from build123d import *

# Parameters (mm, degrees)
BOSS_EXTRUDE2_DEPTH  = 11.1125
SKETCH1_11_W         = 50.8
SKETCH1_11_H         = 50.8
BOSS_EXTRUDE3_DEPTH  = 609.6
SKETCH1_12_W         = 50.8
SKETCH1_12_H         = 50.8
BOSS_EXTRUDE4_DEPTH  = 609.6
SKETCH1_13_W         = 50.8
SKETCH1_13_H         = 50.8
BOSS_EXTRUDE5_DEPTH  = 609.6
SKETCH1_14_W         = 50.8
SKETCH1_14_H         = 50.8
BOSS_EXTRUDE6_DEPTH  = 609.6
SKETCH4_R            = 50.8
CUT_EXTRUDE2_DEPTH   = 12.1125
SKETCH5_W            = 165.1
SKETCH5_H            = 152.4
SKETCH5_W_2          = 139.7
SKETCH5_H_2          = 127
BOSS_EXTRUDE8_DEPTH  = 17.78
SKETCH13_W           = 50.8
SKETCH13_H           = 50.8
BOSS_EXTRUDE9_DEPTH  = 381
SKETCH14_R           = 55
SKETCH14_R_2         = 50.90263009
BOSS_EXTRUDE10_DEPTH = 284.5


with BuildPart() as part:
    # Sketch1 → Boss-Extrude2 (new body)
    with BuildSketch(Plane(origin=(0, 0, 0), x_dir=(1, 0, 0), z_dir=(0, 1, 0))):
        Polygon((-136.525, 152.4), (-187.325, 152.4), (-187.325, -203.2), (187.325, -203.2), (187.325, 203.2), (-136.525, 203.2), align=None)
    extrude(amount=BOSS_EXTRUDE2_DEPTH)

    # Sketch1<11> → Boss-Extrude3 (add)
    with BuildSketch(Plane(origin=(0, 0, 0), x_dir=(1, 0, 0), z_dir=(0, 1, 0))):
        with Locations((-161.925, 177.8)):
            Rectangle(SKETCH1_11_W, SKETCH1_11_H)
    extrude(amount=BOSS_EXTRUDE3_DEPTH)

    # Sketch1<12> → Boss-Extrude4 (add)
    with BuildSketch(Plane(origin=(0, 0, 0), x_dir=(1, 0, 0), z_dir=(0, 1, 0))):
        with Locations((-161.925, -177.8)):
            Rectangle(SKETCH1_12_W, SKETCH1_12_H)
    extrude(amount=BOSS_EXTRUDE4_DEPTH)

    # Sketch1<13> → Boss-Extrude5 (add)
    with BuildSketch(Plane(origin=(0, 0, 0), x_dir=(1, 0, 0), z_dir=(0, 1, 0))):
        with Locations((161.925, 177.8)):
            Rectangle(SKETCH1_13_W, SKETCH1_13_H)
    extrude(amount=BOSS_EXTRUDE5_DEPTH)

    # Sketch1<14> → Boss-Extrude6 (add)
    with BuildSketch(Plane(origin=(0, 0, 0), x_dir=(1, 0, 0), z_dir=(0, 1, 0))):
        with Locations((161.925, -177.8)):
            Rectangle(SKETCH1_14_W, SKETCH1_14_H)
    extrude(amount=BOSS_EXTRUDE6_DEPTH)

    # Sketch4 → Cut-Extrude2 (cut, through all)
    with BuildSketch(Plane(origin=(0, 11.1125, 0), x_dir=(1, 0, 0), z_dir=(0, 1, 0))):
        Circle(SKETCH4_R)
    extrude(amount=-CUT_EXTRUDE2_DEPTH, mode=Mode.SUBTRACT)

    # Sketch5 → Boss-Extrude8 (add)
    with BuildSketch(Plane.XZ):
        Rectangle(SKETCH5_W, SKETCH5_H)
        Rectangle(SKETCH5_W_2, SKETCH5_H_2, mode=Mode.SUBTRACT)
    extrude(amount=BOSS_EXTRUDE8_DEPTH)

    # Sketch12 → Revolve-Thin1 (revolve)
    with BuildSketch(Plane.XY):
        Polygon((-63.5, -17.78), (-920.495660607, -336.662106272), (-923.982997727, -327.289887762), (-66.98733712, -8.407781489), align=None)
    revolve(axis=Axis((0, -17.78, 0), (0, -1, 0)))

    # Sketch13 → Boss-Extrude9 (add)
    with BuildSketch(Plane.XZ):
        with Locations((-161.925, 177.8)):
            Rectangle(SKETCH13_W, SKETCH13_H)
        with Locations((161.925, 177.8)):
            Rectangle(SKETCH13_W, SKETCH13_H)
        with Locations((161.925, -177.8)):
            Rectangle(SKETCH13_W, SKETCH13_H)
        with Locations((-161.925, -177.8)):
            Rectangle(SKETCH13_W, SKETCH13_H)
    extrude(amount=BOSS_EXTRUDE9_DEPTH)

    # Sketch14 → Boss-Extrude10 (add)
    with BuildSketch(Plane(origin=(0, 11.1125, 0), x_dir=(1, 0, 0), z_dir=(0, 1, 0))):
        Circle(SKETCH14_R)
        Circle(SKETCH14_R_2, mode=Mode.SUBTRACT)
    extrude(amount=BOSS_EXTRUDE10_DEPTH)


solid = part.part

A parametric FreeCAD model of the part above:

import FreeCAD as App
import Part
import Sketcher
from FreeCAD import Vector
Q = App.Units.Quantity

doc = App.newDocument("Part")
body = doc.addObject("PartDesign::Body", "Body")

sketch1 = body.newObject("Sketcher::SketchObject", "Sketch")
sketch1.AttachmentSupport = (doc.getObject("XZ_Plane"), [""])
sketch1.MapMode = "FlatFace"
sketch1.addGeometry(Part.LineSegment(Vector(-137, -152, 0), Vector(-187, -152, 0)), False)
sketch1.addGeometry(Part.LineSegment(Vector(-187, -152, 0), Vector(-187, 203, 0)), False)
sketch1.addGeometry(Part.LineSegment(Vector(-187, 203, 0), Vector(187, 203, 0)), False)
sketch1.addGeometry(Part.LineSegment(Vector(187, 203, 0), Vector(187, -203, 0)), False)
sketch1.addGeometry(Part.LineSegment(Vector(187, -203, 0), Vector(-137, -203, 0)), False)
sketch1.addGeometry(Part.LineSegment(Vector(-137, -203, 0), Vector(-137, -152, 0)), False)
sketch1.addConstraint(Sketcher.Constraint("Coincident", 0, 2, 1, 1))
sketch1.addConstraint(Sketcher.Constraint("Coincident", 1, 2, 2, 1))
sketch1.addConstraint(Sketcher.Constraint("Coincident", 2, 2, 3, 1))
sketch1.addConstraint(Sketcher.Constraint("Coincident", 3, 2, 4, 1))
sketch1.addConstraint(Sketcher.Constraint("Coincident", 4, 2, 5, 1))
sketch1.addConstraint(Sketcher.Constraint("Coincident", 5, 2, 0, 1))
sketch1.addConstraint(Sketcher.Constraint("Horizontal", 0))
sketch1.addConstraint(Sketcher.Constraint("Vertical", 1))
sketch1.addConstraint(Sketcher.Constraint("Horizontal", 2))
sketch1.addConstraint(Sketcher.Constraint("Vertical", 3))
sketch1.addConstraint(Sketcher.Constraint("Horizontal", 4))
sketch1.addConstraint(Sketcher.Constraint("Vertical", 5))
sketch1.addConstraint(Sketcher.Constraint("Symmetric", 1, 2, 3, 2, -1, 1))
sketch1.addConstraint(Sketcher.Constraint("Equal", 0, 5))
sketch1.addConstraint(Sketcher.Constraint("DistanceX", 0, 2, 0, 1, Q("2 in")))
sketch1.addConstraint(Sketcher.Constraint("DistanceY", 1, 1, 1, 2, Q("14 in")))
sketch1.addConstraint(Sketcher.Constraint("DistanceX", 2, 1, 2, 2, Q("14.75 in")))
pad1 = body.newObject("PartDesign::Pad", "Pad")
pad1.Profile = sketch1
pad1.Length = Q("0.4375 in")
pad1.Reversed = True

sketch2 = body.newObject("Sketcher::SketchObject", "Sketch001")
sketch2.AttachmentSupport = (doc.getObject("XZ_Plane"), [""])
sketch2.MapMode = "FlatFace"
sketch2.addGeometry(Part.LineSegment(Vector(-187, -203, 0), Vector(-187, -152, 0)), False)
sketch2.addGeometry(Part.LineSegment(Vector(-187, -152, 0), Vector(-137, -152, 0)), False)
sketch2.addGeometry(Part.LineSegment(Vector(-137, -152, 0), Vector(-137, -203, 0)), False)
sketch2.addGeometry(Part.LineSegment(Vector(-137, -203, 0), Vector(-187, -203, 0)), False)
sketch2.addConstraint(Sketcher.Constraint("Coincident", 0, 2, 1, 1))
sketch2.addConstraint(Sketcher.Constraint("Coincident", 1, 2, 2, 1))
sketch2.addConstraint(Sketcher.Constraint("Coincident", 2, 2, 3, 1))
sketch2.addConstraint(Sketcher.Constraint("Coincident", 3, 2, 0, 1))
sketch2.addConstraint(Sketcher.Constraint("Vertical", 0))
sketch2.addConstraint(Sketcher.Constraint("Horizontal", 1))
sketch2.addConstraint(Sketcher.Constraint("Vertical", 2))
sketch2.addConstraint(Sketcher.Constraint("Horizontal", 3))
sketch2.addConstraint(Sketcher.Constraint("Equal", 3, 0))
sketch2.addConstraint(Sketcher.Constraint("DistanceX", 1, 1, 1, 2, Q("2 in")))
sketch2.addConstraint(Sketcher.Constraint("DistanceY", 0, 2, -1, 1, Q("6 in")))
sketch2.addConstraint(Sketcher.Constraint("DistanceX", 0, 2, -1, 1, Q("7.375 in")))
pad2 = body.newObject("PartDesign::Pad", "Pad001")
pad2.Profile = sketch2
pad2.Length = Q("24 in")
pad2.Reversed = True

sketch3 = body.newObject("Sketcher::SketchObject", "Sketch002")
sketch3.AttachmentSupport = (doc.getObject("XZ_Plane"), [""])
sketch3.MapMode = "FlatFace"
sketch3.addGeometry(Part.LineSegment(Vector(-187, 152, 0), Vector(-187, 203, 0)), False)
sketch3.addGeometry(Part.LineSegment(Vector(-187, 203, 0), Vector(-137, 203, 0)), False)
sketch3.addGeometry(Part.LineSegment(Vector(-137, 203, 0), Vector(-137, 152, 0)), False)
sketch3.addGeometry(Part.LineSegment(Vector(-137, 152, 0), Vector(-187, 152, 0)), False)
sketch3.addConstraint(Sketcher.Constraint("Coincident", 0, 2, 1, 1))
sketch3.addConstraint(Sketcher.Constraint("Coincident", 1, 2, 2, 1))
sketch3.addConstraint(Sketcher.Constraint("Coincident", 2, 2, 3, 1))
sketch3.addConstraint(Sketcher.Constraint("Coincident", 3, 2, 0, 1))
sketch3.addConstraint(Sketcher.Constraint("Vertical", 0))
sketch3.addConstraint(Sketcher.Constraint("Horizontal", 1))
sketch3.addConstraint(Sketcher.Constraint("Vertical", 2))
sketch3.addConstraint(Sketcher.Constraint("Horizontal", 3))
sketch3.addConstraint(Sketcher.Constraint("Equal", 3, 0))
sketch3.addConstraint(Sketcher.Constraint("DistanceX", 1, 1, 1, 2, Q("2 in")))
sketch3.addConstraint(Sketcher.Constraint("DistanceY", -1, 1, 0, 2, Q("8 in")))
sketch3.addConstraint(Sketcher.Constraint("DistanceX", 0, 2, -1, 1, Q("7.375 in")))
pad3 = body.newObject("PartDesign::Pad", "Pad002")
pad3.Profile = sketch3
pad3.Length = Q("24 in")
pad3.Reversed = True

sketch4 = body.newObject("Sketcher::SketchObject", "Sketch003")
sketch4.AttachmentSupport = (doc.getObject("XZ_Plane"), [""])
sketch4.MapMode = "FlatFace"
sketch4.addGeometry(Part.LineSegment(Vector(137, -203, 0), Vector(137, -152, 0)), False)
sketch4.addGeometry(Part.LineSegment(Vector(137, -152, 0), Vector(187, -152, 0)), False)
sketch4.addGeometry(Part.LineSegment(Vector(187, -152, 0), Vector(187, -203, 0)), False)
sketch4.addGeometry(Part.LineSegment(Vector(187, -203, 0), Vector(137, -203, 0)), False)
sketch4.addConstraint(Sketcher.Constraint("Coincident", 0, 2, 1, 1))
sketch4.addConstraint(Sketcher.Constraint("Coincident", 1, 2, 2, 1))
sketch4.addConstraint(Sketcher.Constraint("Coincident", 2, 2, 3, 1))
sketch4.addConstraint(Sketcher.Constraint("Coincident", 3, 2, 0, 1))
sketch4.addConstraint(Sketcher.Constraint("Vertical", 0))
sketch4.addConstraint(Sketcher.Constraint("Horizontal", 1))
sketch4.addConstraint(Sketcher.Constraint("Vertical", 2))
sketch4.addConstraint(Sketcher.Constraint("Horizontal", 3))
sketch4.addConstraint(Sketcher.Constraint("Equal", 3, 0))
sketch4.addConstraint(Sketcher.Constraint("DistanceX", 1, 1, 1, 2, Q("2 in")))
sketch4.addConstraint(Sketcher.Constraint("DistanceY", 0, 2, -1, 1, Q("6 in")))
sketch4.addConstraint(Sketcher.Constraint("DistanceX", -1, 1, 0, 2, Q("5.375 in")))
pad4 = body.newObject("PartDesign::Pad", "Pad003")
pad4.Profile = sketch4
pad4.Length = Q("24 in")
pad4.Reversed = True

sketch5 = body.newObject("Sketcher::SketchObject", "Sketch004")
sketch5.AttachmentSupport = (doc.getObject("XZ_Plane"), [""])
sketch5.MapMode = "FlatFace"
sketch5.addGeometry(Part.LineSegment(Vector(137, 152, 0), Vector(137, 203, 0)), False)
sketch5.addGeometry(Part.LineSegment(Vector(137, 203, 0), Vector(187, 203, 0)), False)
sketch5.addGeometry(Part.LineSegment(Vector(187, 203, 0), Vector(187, 152, 0)), False)
sketch5.addGeometry(Part.LineSegment(Vector(187, 152, 0), Vector(137, 152, 0)), False)
sketch5.addConstraint(Sketcher.Constraint("Coincident", 0, 2, 1, 1))
sketch5.addConstraint(Sketcher.Constraint("Coincident", 1, 2, 2, 1))
sketch5.addConstraint(Sketcher.Constraint("Coincident", 2, 2, 3, 1))
sketch5.addConstraint(Sketcher.Constraint("Coincident", 3, 2, 0, 1))
sketch5.addConstraint(Sketcher.Constraint("Vertical", 0))
sketch5.addConstraint(Sketcher.Constraint("Horizontal", 1))
sketch5.addConstraint(Sketcher.Constraint("Vertical", 2))
sketch5.addConstraint(Sketcher.Constraint("Horizontal", 3))
sketch5.addConstraint(Sketcher.Constraint("Equal", 3, 0))
sketch5.addConstraint(Sketcher.Constraint("DistanceX", 1, 1, 1, 2, Q("2 in")))
sketch5.addConstraint(Sketcher.Constraint("DistanceY", -1, 1, 0, 2, Q("8 in")))
sketch5.addConstraint(Sketcher.Constraint("DistanceX", -1, 1, 0, 2, Q("5.375 in")))
pad5 = body.newObject("PartDesign::Pad", "Pad004")
pad5.Profile = sketch5
pad5.Length = Q("24 in")
pad5.Reversed = True

sketch6 = body.newObject("Sketcher::SketchObject", "Sketch005")
sketch6.AttachmentSupport = (doc.getObject("XZ_Plane"), [""])
sketch6.MapMode = "FlatFace"
sketch6.AttachmentOffset = App.Placement(Vector(0, 0, -0.4375 * 25.4), App.Rotation())
sketch6.addGeometry(Part.Circle(Vector(0, 0, 0), Vector(0, 0, 1), 51), False)
sketch6.addConstraint(Sketcher.Constraint("Coincident", 0, 3, -1, 1))
sketch6.addConstraint(Sketcher.Constraint("Diameter", 0, Q("4 in")))
pocket1 = body.newObject("PartDesign::Pocket", "Pocket")
pocket1.Profile = sketch6
pocket1.Type = "ThroughAll"
pocket1.Reversed = True

sketch7 = body.newObject("Sketcher::SketchObject", "Sketch006")
sketch7.AttachmentSupport = (doc.getObject("XZ_Plane"), [""])
sketch7.MapMode = "FlatFace"
sketch7.addGeometry(Part.LineSegment(Vector(-83, 76, 0), Vector(-83, -76, 0)), False)
sketch7.addGeometry(Part.LineSegment(Vector(-83, -76, 0), Vector(83, -76, 0)), False)
sketch7.addGeometry(Part.LineSegment(Vector(83, -76, 0), Vector(83, 76, 0)), False)
sketch7.addGeometry(Part.LineSegment(Vector(83, 76, 0), Vector(-83, 76, 0)), False)
sketch7.addGeometry(Part.LineSegment(Vector(70, -64, 0), Vector(-70, -64, 0)), False)
sketch7.addGeometry(Part.LineSegment(Vector(-70, -64, 0), Vector(-70, 64, 0)), False)
sketch7.addGeometry(Part.LineSegment(Vector(-70, 64, 0), Vector(70, 64, 0)), False)
sketch7.addGeometry(Part.LineSegment(Vector(70, 64, 0), Vector(70, -64, 0)), False)
sketch7.addConstraint(Sketcher.Constraint("Coincident", 0, 2, 1, 1))
sketch7.addConstraint(Sketcher.Constraint("Coincident", 1, 2, 2, 1))
sketch7.addConstraint(Sketcher.Constraint("Coincident", 2, 2, 3, 1))
sketch7.addConstraint(Sketcher.Constraint("Coincident", 3, 2, 0, 1))
sketch7.addConstraint(Sketcher.Constraint("Coincident", 4, 2, 5, 1))
sketch7.addConstraint(Sketcher.Constraint("Coincident", 5, 2, 6, 1))
sketch7.addConstraint(Sketcher.Constraint("Coincident", 6, 2, 7, 1))
sketch7.addConstraint(Sketcher.Constraint("Coincident", 7, 2, 4, 1))
sketch7.addConstraint(Sketcher.Constraint("Vertical", 0))
sketch7.addConstraint(Sketcher.Constraint("Horizontal", 1))
sketch7.addConstraint(Sketcher.Constraint("Vertical", 2))
sketch7.addConstraint(Sketcher.Constraint("Horizontal", 3))
sketch7.addConstraint(Sketcher.Constraint("Horizontal", 4))
sketch7.addConstraint(Sketcher.Constraint("Vertical", 5))
sketch7.addConstraint(Sketcher.Constraint("Horizontal", 6))
sketch7.addConstraint(Sketcher.Constraint("Vertical", 7))
sketch7.addConstraint(Sketcher.Constraint("Symmetric", 0, 2, 2, 2, -1, 1))
sketch7.addConstraint(Sketcher.Constraint("Symmetric", 4, 2, 6, 2, -1, 1))
sketch7.addConstraint(Sketcher.Constraint("DistanceY", 0, 2, 0, 1, Q("6 in")))
sketch7.addConstraint(Sketcher.Constraint("DistanceY", 5, 1, 5, 2, Q("5 in")))
sketch7.addConstraint(Sketcher.Constraint("DistanceX", 1, 1, 1, 2, Q("6.5 in")))
sketch7.addConstraint(Sketcher.Constraint("DistanceX", 4, 2, 4, 1, Q("5.5 in")))
pad6 = body.newObject("PartDesign::Pad", "Pad005")
pad6.Profile = sketch7
pad6.Length = Q("0.7 in")

sketch8 = body.newObject("Sketcher::SketchObject", "Sketch007")
sketch8.AttachmentSupport = (doc.getObject("XY_Plane"), [""])
sketch8.MapMode = "FlatFace"
sketch8.addGeometry(Part.LineSegment(Vector(-920, -337, 0), Vector(-64, -18, 0)), False)
sketch8.addGeometry(Part.LineSegment(Vector(-64, -18, 0), Vector(-67, -8, 0)), False)
sketch8.addGeometry(Part.LineSegment(Vector(-67, -8, 0), Vector(-924, -327, 0)), False)
sketch8.addGeometry(Part.LineSegment(Vector(-924, -327, 0), Vector(-920, -337, 0)), False)
sketch8.addConstraint(Sketcher.Constraint("Coincident", 0, 2, 1, 1))
sketch8.addConstraint(Sketcher.Constraint("Coincident", 1, 2, 2, 1))
sketch8.addConstraint(Sketcher.Constraint("Coincident", 2, 2, 3, 1))
sketch8.addConstraint(Sketcher.Constraint("Coincident", 3, 2, 0, 1))
sketch8.addConstraint(Sketcher.Constraint("Perpendicular", 0, 1))
sketch8.addConstraint(Sketcher.Constraint("Perpendicular", 1, 2))
sketch8.addConstraint(Sketcher.Constraint("Perpendicular", 2, 3))
sketch8.addConstraint(Sketcher.Constraint("Distance", 0, Q("36 in")))
sketch8.addConstraint(Sketcher.Constraint("DistanceX", 0, 2, -1, 1, Q("2.5 in")))
sketch8.addConstraint(Sketcher.Constraint("DistanceY", 0, 2, -1, 1, Q("0.7 in")))
sketch8.addConstraint(Sketcher.Constraint("Distance", 1, Q("10 mm")))
sketch8.addConstraint(Sketcher.Constraint("DistanceX", 3, 2, -1, 1, Q("920.495661 mm")))
revolution = body.newObject("PartDesign::Revolution", "Revolution")
revolution.Profile = sketch8
revolution.ReferenceAxis = (sketch8, ["V_Axis"])
revolution.Angle = 360

sketch9 = body.newObject("Sketcher::SketchObject", "Sketch008")
sketch9.AttachmentSupport = (doc.getObject("XZ_Plane"), [""])
sketch9.MapMode = "FlatFace"
sketch9.addGeometry(Part.LineSegment(Vector(-187, 203, 0), Vector(-187, 152, 0)), False)
sketch9.addGeometry(Part.LineSegment(Vector(-187, 152, 0), Vector(-137, 152, 0)), False)
sketch9.addGeometry(Part.LineSegment(Vector(-137, 152, 0), Vector(-137, 203, 0)), False)
sketch9.addGeometry(Part.LineSegment(Vector(-137, 203, 0), Vector(-187, 203, 0)), False)
sketch9.addGeometry(Part.LineSegment(Vector(137, 203, 0), Vector(137, 152, 0)), False)
sketch9.addGeometry(Part.LineSegment(Vector(137, 152, 0), Vector(187, 152, 0)), False)
sketch9.addGeometry(Part.LineSegment(Vector(187, 152, 0), Vector(187, 203, 0)), False)
sketch9.addGeometry(Part.LineSegment(Vector(187, 203, 0), Vector(137, 203, 0)), False)
sketch9.addGeometry(Part.LineSegment(Vector(137, -152, 0), Vector(137, -203, 0)), False)
sketch9.addGeometry(Part.LineSegment(Vector(137, -203, 0), Vector(187, -203, 0)), False)
sketch9.addGeometry(Part.LineSegment(Vector(187, -203, 0), Vector(187, -152, 0)), False)
sketch9.addGeometry(Part.LineSegment(Vector(187, -152, 0), Vector(137, -152, 0)), False)
sketch9.addGeometry(Part.LineSegment(Vector(-187, -152, 0), Vector(-187, -203, 0)), False)
sketch9.addGeometry(Part.LineSegment(Vector(-187, -203, 0), Vector(-137, -203, 0)), False)
sketch9.addGeometry(Part.LineSegment(Vector(-137, -203, 0), Vector(-137, -152, 0)), False)
sketch9.addGeometry(Part.LineSegment(Vector(-137, -152, 0), Vector(-187, -152, 0)), False)
sketch9.addConstraint(Sketcher.Constraint("Coincident", 0, 2, 1, 1))
sketch9.addConstraint(Sketcher.Constraint("Coincident", 1, 2, 2, 1))
sketch9.addConstraint(Sketcher.Constraint("Coincident", 2, 2, 3, 1))
sketch9.addConstraint(Sketcher.Constraint("Coincident", 3, 2, 0, 1))
sketch9.addConstraint(Sketcher.Constraint("Coincident", 4, 2, 5, 1))
sketch9.addConstraint(Sketcher.Constraint("Coincident", 5, 2, 6, 1))
sketch9.addConstraint(Sketcher.Constraint("Coincident", 6, 2, 7, 1))
sketch9.addConstraint(Sketcher.Constraint("Coincident", 7, 2, 4, 1))
sketch9.addConstraint(Sketcher.Constraint("Coincident", 8, 2, 9, 1))
sketch9.addConstraint(Sketcher.Constraint("Coincident", 9, 2, 10, 1))
sketch9.addConstraint(Sketcher.Constraint("Coincident", 10, 2, 11, 1))
sketch9.addConstraint(Sketcher.Constraint("Coincident", 11, 2, 8, 1))
sketch9.addConstraint(Sketcher.Constraint("Coincident", 12, 2, 13, 1))
sketch9.addConstraint(Sketcher.Constraint("Coincident", 13, 2, 14, 1))
sketch9.addConstraint(Sketcher.Constraint("Coincident", 14, 2, 15, 1))
sketch9.addConstraint(Sketcher.Constraint("Coincident", 15, 2, 12, 1))
sketch9.addConstraint(Sketcher.Constraint("Vertical", 0))
sketch9.addConstraint(Sketcher.Constraint("Horizontal", 1))
sketch9.addConstraint(Sketcher.Constraint("Vertical", 2))
sketch9.addConstraint(Sketcher.Constraint("Horizontal", 3))
sketch9.addConstraint(Sketcher.Constraint("Vertical", 4))
sketch9.addConstraint(Sketcher.Constraint("Horizontal", 5))
sketch9.addConstraint(Sketcher.Constraint("Vertical", 6))
sketch9.addConstraint(Sketcher.Constraint("Horizontal", 7))
sketch9.addConstraint(Sketcher.Constraint("Vertical", 8))
sketch9.addConstraint(Sketcher.Constraint("Horizontal", 9))
sketch9.addConstraint(Sketcher.Constraint("Vertical", 10))
sketch9.addConstraint(Sketcher.Constraint("Horizontal", 11))
sketch9.addConstraint(Sketcher.Constraint("Vertical", 12))
sketch9.addConstraint(Sketcher.Constraint("Horizontal", 13))
sketch9.addConstraint(Sketcher.Constraint("Vertical", 14))
sketch9.addConstraint(Sketcher.Constraint("Horizontal", 15))
sketch9.addConstraint(Sketcher.Constraint("Symmetric", 2, 2, 8, 2, -1, 1))
sketch9.addConstraint(Sketcher.Constraint("Symmetric", 0, 2, 10, 2, -1, 1))
sketch9.addConstraint(Sketcher.Constraint("Symmetric", 6, 2, 12, 2, -1, 1))
sketch9.addConstraint(Sketcher.Constraint("Symmetric", 4, 2, 14, 2, -1, 1))
sketch9.addConstraint(Sketcher.Constraint("Symmetric", 1, 2, 4, 2, -2))
sketch9.addConstraint(Sketcher.Constraint("Symmetric", 3, 2, 6, 2, -2))
sketch9.addConstraint(Sketcher.Constraint("Equal", 15, 0))
sketch9.addConstraint(Sketcher.Constraint("DistanceX", 1, 1, 1, 2, Q("2 in")))
sketch9.addConstraint(Sketcher.Constraint("DistanceY", -1, 1, 0, 2, Q("6 in")))
sketch9.addConstraint(Sketcher.Constraint("DistanceX", 1, 2, 4, 2, Q("10.75 in")))
pad7 = body.newObject("PartDesign::Pad", "Pad006")
pad7.Profile = sketch9
pad7.Length = Q("15 in")

sketch10 = body.newObject("Sketcher::SketchObject", "Sketch009")
sketch10.AttachmentSupport = (doc.getObject("XZ_Plane"), [""])
sketch10.MapMode = "FlatFace"
sketch10.AttachmentOffset = App.Placement(Vector(0, 0, -0.4375 * 25.4), App.Rotation())
sketch10.addGeometry(Part.Circle(Vector(0, 0, 0), Vector(0, 0, 1), 55), False)
sketch10.addGeometry(Part.Circle(Vector(0, 0, 0), Vector(0, 0, 1), 51), False)
sketch10.addConstraint(Sketcher.Constraint("Coincident", 0, 3, -1, 1))
sketch10.addConstraint(Sketcher.Constraint("Coincident", 1, 3, -1, 1))
sketch10.addConstraint(Sketcher.Constraint("Diameter", 0, Q("110 mm")))
sketch10.addConstraint(Sketcher.Constraint("Diameter", 1, Q("101.80526 mm")))
pad8 = body.newObject("PartDesign::Pad", "Pad007")
pad8.Profile = sketch10
pad8.Length = 284.5
pad8.Reversed = True

doc.recompute()
